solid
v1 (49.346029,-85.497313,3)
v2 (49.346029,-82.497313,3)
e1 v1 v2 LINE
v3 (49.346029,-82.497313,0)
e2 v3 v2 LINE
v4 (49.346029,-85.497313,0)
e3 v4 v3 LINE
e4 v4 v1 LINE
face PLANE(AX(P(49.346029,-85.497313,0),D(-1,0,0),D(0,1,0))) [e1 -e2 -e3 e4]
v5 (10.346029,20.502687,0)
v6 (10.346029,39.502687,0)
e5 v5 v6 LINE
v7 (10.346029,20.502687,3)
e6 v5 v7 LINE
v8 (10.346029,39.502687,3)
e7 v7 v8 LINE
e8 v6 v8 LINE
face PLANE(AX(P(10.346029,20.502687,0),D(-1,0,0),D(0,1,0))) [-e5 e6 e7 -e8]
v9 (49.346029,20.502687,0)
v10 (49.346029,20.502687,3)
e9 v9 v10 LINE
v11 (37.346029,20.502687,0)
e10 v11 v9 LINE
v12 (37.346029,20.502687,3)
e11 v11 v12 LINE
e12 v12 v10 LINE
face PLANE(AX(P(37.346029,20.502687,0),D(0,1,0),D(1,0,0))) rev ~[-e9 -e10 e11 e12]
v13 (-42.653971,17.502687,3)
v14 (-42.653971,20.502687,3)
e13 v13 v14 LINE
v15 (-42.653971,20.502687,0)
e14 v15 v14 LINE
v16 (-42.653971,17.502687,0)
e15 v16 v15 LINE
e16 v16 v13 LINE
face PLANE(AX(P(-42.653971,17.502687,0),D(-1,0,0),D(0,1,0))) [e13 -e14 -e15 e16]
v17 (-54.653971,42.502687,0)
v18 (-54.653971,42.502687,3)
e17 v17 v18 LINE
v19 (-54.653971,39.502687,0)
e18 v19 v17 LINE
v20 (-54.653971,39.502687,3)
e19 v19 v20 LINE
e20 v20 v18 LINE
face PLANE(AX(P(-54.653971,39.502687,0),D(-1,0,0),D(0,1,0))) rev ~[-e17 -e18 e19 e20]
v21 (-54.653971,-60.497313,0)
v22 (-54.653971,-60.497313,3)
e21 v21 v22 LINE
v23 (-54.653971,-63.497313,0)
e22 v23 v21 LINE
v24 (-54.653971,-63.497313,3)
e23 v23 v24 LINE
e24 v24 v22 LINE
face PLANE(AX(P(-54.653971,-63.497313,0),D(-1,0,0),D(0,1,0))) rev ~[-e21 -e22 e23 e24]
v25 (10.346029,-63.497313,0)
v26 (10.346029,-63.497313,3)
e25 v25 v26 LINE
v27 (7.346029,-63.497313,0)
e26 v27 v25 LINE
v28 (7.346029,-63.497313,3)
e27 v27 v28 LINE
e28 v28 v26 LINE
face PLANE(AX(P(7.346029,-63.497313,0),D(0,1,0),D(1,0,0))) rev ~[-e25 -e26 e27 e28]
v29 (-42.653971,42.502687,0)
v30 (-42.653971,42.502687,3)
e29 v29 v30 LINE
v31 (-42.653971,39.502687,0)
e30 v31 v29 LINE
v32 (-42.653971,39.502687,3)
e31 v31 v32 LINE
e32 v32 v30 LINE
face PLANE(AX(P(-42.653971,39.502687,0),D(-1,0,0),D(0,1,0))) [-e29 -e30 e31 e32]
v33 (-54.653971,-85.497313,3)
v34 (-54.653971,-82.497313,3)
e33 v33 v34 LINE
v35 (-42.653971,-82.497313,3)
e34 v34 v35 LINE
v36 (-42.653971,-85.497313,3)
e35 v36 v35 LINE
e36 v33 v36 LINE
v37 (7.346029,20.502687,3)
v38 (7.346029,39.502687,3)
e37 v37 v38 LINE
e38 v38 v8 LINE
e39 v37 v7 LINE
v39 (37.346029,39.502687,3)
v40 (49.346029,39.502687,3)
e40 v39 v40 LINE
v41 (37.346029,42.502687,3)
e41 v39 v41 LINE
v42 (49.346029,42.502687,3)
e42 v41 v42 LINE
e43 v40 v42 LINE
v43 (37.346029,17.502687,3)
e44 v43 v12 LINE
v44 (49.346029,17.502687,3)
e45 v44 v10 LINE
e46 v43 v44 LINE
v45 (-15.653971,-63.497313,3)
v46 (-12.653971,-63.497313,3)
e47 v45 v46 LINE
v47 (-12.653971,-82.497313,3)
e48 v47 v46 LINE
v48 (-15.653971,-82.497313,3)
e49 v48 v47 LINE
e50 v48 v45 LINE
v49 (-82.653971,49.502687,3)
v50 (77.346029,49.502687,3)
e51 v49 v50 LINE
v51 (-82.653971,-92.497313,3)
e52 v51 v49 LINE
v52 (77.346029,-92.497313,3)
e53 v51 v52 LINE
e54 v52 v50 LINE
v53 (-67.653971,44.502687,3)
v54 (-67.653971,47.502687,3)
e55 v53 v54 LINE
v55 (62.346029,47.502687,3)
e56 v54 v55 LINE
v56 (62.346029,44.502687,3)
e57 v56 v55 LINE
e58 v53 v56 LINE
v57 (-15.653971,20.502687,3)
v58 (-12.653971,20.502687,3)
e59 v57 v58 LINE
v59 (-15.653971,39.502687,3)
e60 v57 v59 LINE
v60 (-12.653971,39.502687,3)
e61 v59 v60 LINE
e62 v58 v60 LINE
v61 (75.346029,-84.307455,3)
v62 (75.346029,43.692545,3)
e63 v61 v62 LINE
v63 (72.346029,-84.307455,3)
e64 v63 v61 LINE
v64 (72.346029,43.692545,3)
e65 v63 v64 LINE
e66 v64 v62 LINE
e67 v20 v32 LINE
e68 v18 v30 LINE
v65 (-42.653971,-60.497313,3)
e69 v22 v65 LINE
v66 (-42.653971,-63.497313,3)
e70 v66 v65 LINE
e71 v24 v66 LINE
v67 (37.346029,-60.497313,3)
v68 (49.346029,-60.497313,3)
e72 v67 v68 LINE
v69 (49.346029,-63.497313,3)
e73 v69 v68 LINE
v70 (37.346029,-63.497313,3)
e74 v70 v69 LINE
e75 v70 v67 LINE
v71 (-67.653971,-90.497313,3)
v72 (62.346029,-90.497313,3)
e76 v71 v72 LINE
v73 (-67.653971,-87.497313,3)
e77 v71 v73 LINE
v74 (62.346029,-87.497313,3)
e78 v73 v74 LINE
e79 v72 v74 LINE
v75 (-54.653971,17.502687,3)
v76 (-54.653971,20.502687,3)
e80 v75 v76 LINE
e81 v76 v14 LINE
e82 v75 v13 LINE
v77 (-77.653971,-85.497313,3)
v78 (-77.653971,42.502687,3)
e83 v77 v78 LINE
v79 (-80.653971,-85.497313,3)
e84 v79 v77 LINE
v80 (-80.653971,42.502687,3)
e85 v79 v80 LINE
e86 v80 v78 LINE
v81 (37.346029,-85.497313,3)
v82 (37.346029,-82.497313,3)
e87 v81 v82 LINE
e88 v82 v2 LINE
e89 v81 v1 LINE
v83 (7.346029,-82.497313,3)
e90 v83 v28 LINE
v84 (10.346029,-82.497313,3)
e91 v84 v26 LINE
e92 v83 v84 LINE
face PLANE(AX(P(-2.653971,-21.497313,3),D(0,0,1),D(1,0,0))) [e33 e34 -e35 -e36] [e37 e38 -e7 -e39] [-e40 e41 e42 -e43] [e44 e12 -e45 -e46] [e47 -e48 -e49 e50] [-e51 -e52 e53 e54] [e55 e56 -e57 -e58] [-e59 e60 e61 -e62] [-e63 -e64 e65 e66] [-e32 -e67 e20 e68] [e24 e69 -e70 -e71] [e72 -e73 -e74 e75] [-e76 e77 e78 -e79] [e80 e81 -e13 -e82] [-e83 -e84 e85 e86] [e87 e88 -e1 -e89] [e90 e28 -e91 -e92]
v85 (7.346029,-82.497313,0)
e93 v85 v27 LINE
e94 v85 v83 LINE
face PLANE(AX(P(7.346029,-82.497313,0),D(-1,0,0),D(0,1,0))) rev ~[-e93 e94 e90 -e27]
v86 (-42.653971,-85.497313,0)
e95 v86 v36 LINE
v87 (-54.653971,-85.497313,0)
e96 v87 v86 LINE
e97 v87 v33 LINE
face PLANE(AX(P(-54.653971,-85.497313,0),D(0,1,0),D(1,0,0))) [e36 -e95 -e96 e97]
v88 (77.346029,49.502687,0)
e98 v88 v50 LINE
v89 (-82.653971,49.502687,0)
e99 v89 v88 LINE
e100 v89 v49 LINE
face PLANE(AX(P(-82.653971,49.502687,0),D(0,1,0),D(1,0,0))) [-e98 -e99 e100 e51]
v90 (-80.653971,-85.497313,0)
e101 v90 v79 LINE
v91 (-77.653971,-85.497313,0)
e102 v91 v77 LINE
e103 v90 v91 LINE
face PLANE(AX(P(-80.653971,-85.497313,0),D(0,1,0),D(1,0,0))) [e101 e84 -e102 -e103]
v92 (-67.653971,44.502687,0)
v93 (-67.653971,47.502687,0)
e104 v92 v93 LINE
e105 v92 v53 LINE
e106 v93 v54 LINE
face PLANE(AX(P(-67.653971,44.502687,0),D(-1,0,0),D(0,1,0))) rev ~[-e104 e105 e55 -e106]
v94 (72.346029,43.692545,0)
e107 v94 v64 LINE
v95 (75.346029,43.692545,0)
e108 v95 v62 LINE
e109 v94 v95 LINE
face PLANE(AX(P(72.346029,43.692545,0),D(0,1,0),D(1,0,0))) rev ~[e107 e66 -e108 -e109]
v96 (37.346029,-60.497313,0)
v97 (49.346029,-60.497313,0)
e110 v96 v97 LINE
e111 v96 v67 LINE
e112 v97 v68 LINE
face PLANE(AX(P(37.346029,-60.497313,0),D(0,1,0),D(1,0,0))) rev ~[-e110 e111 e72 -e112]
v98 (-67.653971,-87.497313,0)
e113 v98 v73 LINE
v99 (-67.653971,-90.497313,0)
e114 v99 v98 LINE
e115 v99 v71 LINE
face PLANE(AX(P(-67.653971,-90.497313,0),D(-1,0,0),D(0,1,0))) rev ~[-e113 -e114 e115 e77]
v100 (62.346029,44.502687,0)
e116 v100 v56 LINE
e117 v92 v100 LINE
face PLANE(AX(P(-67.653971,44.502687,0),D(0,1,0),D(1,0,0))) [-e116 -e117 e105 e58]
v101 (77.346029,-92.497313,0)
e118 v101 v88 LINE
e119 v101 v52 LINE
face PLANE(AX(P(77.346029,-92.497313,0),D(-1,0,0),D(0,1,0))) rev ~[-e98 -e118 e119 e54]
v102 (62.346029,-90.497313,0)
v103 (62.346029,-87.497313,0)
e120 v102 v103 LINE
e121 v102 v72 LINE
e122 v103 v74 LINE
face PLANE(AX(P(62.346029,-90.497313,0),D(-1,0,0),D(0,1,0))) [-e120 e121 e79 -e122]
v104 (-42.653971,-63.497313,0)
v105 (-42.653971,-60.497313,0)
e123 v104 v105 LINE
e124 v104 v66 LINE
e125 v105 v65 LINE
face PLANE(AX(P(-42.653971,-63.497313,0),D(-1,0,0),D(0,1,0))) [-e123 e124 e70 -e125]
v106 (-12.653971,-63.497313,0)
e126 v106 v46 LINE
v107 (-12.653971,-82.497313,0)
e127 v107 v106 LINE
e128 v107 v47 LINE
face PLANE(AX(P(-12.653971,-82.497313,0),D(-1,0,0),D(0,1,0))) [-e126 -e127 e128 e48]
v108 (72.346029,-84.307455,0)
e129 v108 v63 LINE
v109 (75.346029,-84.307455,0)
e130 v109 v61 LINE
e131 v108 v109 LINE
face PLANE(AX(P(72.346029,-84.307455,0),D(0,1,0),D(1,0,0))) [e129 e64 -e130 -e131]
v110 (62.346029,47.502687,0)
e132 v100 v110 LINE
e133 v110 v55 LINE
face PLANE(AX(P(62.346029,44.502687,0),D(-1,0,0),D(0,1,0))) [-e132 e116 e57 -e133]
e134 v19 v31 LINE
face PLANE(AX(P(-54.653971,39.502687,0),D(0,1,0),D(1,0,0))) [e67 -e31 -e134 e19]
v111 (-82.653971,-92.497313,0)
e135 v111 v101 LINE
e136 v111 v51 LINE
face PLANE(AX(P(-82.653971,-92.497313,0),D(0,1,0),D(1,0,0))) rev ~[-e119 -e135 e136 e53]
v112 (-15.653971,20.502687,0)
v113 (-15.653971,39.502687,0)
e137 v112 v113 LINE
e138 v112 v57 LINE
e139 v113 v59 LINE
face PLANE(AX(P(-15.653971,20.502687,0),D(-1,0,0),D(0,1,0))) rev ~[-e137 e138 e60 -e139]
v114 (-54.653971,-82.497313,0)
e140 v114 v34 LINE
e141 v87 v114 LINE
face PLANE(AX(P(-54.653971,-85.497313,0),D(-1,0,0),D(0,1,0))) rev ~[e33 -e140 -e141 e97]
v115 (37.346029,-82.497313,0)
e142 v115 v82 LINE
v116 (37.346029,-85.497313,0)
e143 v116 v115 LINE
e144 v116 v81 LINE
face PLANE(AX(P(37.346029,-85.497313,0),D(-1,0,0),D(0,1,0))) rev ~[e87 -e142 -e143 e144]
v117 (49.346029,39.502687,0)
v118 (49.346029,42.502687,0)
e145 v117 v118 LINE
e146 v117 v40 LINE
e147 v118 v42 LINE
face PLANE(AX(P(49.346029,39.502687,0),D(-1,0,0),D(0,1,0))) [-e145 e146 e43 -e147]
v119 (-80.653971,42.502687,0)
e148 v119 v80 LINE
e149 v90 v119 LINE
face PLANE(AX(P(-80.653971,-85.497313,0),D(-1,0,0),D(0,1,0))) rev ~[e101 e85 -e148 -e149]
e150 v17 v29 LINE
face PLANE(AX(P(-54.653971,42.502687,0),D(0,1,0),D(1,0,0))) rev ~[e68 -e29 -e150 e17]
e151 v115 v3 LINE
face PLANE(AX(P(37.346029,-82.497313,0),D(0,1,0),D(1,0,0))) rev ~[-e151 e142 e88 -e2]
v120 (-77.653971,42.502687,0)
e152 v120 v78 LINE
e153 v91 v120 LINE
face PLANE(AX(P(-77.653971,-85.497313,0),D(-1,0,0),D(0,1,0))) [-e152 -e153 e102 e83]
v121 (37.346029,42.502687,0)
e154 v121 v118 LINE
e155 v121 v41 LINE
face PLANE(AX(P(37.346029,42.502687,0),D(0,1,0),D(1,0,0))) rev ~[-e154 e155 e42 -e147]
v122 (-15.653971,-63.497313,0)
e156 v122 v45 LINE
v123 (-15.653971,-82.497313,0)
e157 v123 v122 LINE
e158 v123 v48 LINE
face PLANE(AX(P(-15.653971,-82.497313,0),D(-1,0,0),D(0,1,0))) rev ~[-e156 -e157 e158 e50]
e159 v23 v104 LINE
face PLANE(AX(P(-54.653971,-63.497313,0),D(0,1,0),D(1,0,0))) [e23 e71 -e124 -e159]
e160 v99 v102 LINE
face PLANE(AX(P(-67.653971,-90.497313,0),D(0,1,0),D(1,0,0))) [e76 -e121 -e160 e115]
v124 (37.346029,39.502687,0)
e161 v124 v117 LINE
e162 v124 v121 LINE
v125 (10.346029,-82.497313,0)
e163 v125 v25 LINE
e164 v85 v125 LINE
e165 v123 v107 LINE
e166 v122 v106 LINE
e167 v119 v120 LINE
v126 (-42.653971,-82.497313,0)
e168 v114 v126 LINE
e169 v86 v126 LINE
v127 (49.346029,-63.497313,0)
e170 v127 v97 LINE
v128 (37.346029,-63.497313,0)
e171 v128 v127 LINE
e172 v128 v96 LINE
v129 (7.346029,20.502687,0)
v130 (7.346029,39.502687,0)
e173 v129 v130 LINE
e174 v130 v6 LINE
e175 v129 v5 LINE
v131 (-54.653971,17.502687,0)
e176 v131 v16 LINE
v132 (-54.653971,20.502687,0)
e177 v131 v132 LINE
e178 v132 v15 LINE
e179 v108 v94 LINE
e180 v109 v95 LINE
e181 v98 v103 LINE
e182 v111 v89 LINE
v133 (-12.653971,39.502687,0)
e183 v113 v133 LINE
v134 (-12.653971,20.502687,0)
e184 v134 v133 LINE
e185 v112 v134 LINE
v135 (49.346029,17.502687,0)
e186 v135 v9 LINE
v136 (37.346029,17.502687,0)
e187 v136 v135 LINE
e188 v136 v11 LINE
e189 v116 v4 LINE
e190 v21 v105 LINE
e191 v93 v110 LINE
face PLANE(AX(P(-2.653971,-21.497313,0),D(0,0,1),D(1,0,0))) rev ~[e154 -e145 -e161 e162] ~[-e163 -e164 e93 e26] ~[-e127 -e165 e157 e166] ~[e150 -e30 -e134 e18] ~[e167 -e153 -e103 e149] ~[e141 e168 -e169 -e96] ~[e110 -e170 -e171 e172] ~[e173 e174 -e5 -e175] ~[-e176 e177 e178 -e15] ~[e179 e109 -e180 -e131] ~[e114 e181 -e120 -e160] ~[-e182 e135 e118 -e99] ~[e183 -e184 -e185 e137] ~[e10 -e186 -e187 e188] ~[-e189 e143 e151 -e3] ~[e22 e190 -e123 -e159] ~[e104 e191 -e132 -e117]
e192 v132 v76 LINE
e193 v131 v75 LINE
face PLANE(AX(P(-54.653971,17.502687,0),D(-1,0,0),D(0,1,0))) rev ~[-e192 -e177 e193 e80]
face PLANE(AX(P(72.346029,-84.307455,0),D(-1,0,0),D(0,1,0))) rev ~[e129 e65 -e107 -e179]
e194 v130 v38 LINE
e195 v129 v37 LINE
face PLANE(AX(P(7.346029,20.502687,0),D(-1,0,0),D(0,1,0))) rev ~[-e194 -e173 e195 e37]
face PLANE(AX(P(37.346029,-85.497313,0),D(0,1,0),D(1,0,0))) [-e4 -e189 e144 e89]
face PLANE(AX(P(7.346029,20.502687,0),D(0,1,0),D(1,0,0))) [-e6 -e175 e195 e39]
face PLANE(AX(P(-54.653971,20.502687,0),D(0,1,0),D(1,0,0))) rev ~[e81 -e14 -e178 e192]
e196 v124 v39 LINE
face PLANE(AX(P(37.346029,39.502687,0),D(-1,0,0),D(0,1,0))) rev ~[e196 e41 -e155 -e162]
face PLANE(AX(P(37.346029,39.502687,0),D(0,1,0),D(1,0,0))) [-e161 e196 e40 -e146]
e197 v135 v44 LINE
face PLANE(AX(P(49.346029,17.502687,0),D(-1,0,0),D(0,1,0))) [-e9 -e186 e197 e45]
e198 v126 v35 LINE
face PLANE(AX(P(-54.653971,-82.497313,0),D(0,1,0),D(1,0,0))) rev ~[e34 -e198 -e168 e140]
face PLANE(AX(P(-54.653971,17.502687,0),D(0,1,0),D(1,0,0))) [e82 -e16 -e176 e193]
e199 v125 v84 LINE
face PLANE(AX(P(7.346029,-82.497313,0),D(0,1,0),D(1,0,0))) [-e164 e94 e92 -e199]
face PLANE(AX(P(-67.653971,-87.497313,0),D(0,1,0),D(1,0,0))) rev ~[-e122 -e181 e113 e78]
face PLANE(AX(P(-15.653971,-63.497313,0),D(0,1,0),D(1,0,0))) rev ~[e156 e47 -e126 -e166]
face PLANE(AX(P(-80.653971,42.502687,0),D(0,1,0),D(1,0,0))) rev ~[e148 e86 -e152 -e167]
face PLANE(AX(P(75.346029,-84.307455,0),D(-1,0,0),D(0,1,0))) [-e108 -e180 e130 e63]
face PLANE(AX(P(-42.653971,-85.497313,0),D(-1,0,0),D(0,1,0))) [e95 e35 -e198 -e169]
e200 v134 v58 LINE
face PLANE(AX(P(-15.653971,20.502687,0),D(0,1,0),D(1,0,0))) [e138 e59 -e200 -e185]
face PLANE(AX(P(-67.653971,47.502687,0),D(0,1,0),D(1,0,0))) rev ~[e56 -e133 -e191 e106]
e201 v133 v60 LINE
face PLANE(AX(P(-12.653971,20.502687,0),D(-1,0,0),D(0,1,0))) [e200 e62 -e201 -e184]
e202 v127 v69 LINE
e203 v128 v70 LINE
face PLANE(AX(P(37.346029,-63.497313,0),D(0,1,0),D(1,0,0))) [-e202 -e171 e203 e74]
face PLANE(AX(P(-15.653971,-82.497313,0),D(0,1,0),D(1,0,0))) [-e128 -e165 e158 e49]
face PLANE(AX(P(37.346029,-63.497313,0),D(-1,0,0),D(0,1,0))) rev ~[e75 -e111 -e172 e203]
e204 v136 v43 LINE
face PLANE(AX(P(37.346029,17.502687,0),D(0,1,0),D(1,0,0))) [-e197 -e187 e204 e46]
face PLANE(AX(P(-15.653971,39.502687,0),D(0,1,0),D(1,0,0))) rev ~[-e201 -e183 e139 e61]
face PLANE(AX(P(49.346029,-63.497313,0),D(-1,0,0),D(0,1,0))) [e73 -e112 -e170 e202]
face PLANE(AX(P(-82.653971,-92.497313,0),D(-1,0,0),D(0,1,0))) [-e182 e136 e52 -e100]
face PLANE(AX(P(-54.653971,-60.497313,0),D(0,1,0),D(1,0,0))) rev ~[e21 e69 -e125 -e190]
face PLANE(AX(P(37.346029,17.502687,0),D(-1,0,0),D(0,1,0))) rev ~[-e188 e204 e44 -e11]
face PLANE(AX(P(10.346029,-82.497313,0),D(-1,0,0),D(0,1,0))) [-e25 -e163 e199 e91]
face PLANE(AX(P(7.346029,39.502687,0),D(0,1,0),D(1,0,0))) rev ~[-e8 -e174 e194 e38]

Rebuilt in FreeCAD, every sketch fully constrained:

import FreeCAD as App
import Part
import Sketcher
from FreeCAD import Vector
Q = App.Units.Quantity


def add_polygon(sketch, points):
    """Adds a closed chain of lines whose ends are joined by coincident constraints."""
    first, n = sketch.GeometryCount, len(points)
    for a, b in zip(points, points[1:] + points[:1]):
        sketch.addGeometry(Part.LineSegment(App.Vector(*a, 0), App.Vector(*b, 0)), False)
    for i in range(n):
        sketch.addConstraint(Sketcher.Constraint("Coincident", first + i, 2, first + (i + 1) % n, 1))

doc = App.newDocument("Part")
body = doc.addObject("PartDesign::Body", "Body")

# Sketch on XY plane
sketch1 = doc.addObject("Sketcher::SketchObject", "Sketch")
body.addObject(sketch1)
sketch1.AttachmentSupport = (doc.XY_Plane, [""])
sketch1.MapMode = "FlatFace"
add_polygon(sketch1, [(-82.7, 49.5), (-82.7, -92.5), (77.3, -92.5), (77.3, 49.5)])  # lines 0-3
add_polygon(sketch1, [(-42.7, -85.5), (-54.7, -85.5), (-54.7, -82.5), (-42.7, -82.5)])  # lines 4-7
add_polygon(sketch1, [(-42.7, -63.5), (-54.7, -63.5), (-54.7, -60.5), (-42.7, -60.5)])  # lines 8-11
add_polygon(sketch1, [(-12.7, -82.5), (-15.7, -82.5), (-15.7, -63.5), (-12.7, -63.5)])  # lines 12-15
add_polygon(sketch1, [(62.3, -90.5), (-67.7, -90.5), (-67.7, -87.5), (62.3, -87.5)])  # lines 16-19
add_polygon(sketch1, [(10.3, -82.5), (7.3, -82.5), (7.3, -63.5), (10.3, -63.5)])  # lines 20-23
add_polygon(sketch1, [(49.3, -85.5), (37.3, -85.5), (37.3, -82.5), (49.3, -82.5)])  # lines 24-27
add_polygon(sketch1, [(49.3, -63.5), (37.3, -63.5), (37.3, -60.5), (49.3, -60.5)])  # lines 28-31
add_polygon(sketch1, [(-77.7, -85.5), (-80.7, -85.5), (-80.7, 42.5), (-77.7, 42.5)])  # lines 32-35
add_polygon(sketch1, [(-42.7, 17.5), (-54.7, 17.5), (-54.7, 20.5), (-42.7, 20.5)])  # lines 36-39
add_polygon(sketch1, [(-42.7, 39.5), (-54.7, 39.5), (-54.7, 42.5), (-42.7, 42.5)])  # lines 40-43
add_polygon(sketch1, [(-12.7, 20.5), (-15.7, 20.5), (-15.7, 39.5), (-12.7, 39.5)])  # lines 44-47
add_polygon(sketch1, [(75.3, -84.3), (72.3, -84.3), (72.3, 43.7), (75.3, 43.7)])  # lines 48-51
add_polygon(sketch1, [(10.3, 20.5), (7.3, 20.5), (7.3, 39.5), (10.3, 39.5)])  # lines 52-55
add_polygon(sketch1, [(62.3, 44.5), (-67.7, 44.5), (-67.7, 47.5), (62.3, 47.5)])  # lines 56-59
add_polygon(sketch1, [(49.3, 17.5), (37.3, 17.5), (37.3, 20.5), (49.3, 20.5)])  # lines 60-63
add_polygon(sketch1, [(49.3, 39.5), (37.3, 39.5), (37.3, 42.5), (49.3, 42.5)])  # lines 64-67
sketch1.addConstraint([
    Sketcher.Constraint("Vertical", 0),
    Sketcher.Constraint("Horizontal", 1),
    Sketcher.Constraint("Vertical", 2),
    Sketcher.Constraint("Horizontal", 3),
    Sketcher.Constraint("Horizontal", 4),
    Sketcher.Constraint("Vertical", 5),
    Sketcher.Constraint("Horizontal", 6),
    Sketcher.Constraint("Vertical", 7),
    Sketcher.Constraint("Horizontal", 8),
    Sketcher.Constraint("Vertical", 9),
    Sketcher.Constraint("Horizontal", 10),
    Sketcher.Constraint("Vertical", 11),
    Sketcher.Constraint("Horizontal", 12),
    Sketcher.Constraint("Vertical", 13),
    Sketcher.Constraint("Horizontal", 14),
    Sketcher.Constraint("Vertical", 15),
    Sketcher.Constraint("Horizontal", 16),
    Sketcher.Constraint("Vertical", 17),
    Sketcher.Constraint("Horizontal", 18),
    Sketcher.Constraint("Vertical", 19),
    Sketcher.Constraint("Horizontal", 20),
    Sketcher.Constraint("Vertical", 21),
    Sketcher.Constraint("Horizontal", 22),
    Sketcher.Constraint("Vertical", 23),
    Sketcher.Constraint("Horizontal", 24),
    Sketcher.Constraint("Vertical", 25),
    Sketcher.Constraint("Horizontal", 26),
    Sketcher.Constraint("Vertical", 27),
    Sketcher.Constraint("Horizontal", 28),
    Sketcher.Constraint("Vertical", 29),
    Sketcher.Constraint("Horizontal", 30),
    Sketcher.Constraint("Vertical", 31),
    Sketcher.Constraint("Horizontal", 32),
    Sketcher.Constraint("Vertical", 33),
    Sketcher.Constraint("Horizontal", 34),
    Sketcher.Constraint("Vertical", 35),
    Sketcher.Constraint("Horizontal", 36),
    Sketcher.Constraint("Vertical", 37),
    Sketcher.Constraint("Horizontal", 38),
    Sketcher.Constraint("Vertical", 39),
    Sketcher.Constraint("Horizontal", 40),
    Sketcher.Constraint("Vertical", 41),
    Sketcher.Constraint("Horizontal", 42),
    Sketcher.Constraint("Vertical", 43),
    Sketcher.Constraint("Horizontal", 44),
    Sketcher.Constraint("Vertical", 45),
    Sketcher.Constraint("Horizontal", 46),
    Sketcher.Constraint("Vertical", 47),
    Sketcher.Constraint("Horizontal", 48),
    Sketcher.Constraint("Vertical", 49),
    Sketcher.Constraint("Horizontal", 50),
    Sketcher.Constraint("Vertical", 51),
    Sketcher.Constraint("Horizontal", 52),
    Sketcher.Constraint("Vertical", 53),
    Sketcher.Constraint("Horizontal", 54),
    Sketcher.Constraint("Vertical", 55),
    Sketcher.Constraint("Horizontal", 56),
    Sketcher.Constraint("Vertical", 57),
    Sketcher.Constraint("Horizontal", 58),
    Sketcher.Constraint("Vertical", 59),
    Sketcher.Constraint("Horizontal", 60),
    Sketcher.Constraint("Vertical", 61),
    Sketcher.Constraint("Horizontal", 62),
    Sketcher.Constraint("Vertical", 63),
    Sketcher.Constraint("Horizontal", 64),
    Sketcher.Constraint("Vertical", 65),
    Sketcher.Constraint("Horizontal", 66),
    Sketcher.Constraint("Vertical", 67),
    Sketcher.Constraint("Horizontal", 6, 2, 12, 2),
    Sketcher.Constraint("Horizontal", 11, 2, 13, 2),
    Sketcher.Constraint("Horizontal", 15, 2, 20, 2),
    Sketcher.Constraint("Horizontal", 14, 2, 21, 2),
    Sketcher.Constraint("Horizontal", 7, 2, 24, 2),
    Sketcher.Constraint("Horizontal", 23, 2, 25, 2),
    Sketcher.Constraint("Horizontal", 22, 2, 28, 2),
    Sketcher.Constraint("Horizontal", 10, 2, 29, 2),
    Sketcher.Constraint("Horizontal", 27, 2, 32, 2),
    Sketcher.Constraint("Horizontal", 34, 2, 41, 2),
    Sketcher.Constraint("Horizontal", 38, 2, 44, 2),
    Sketcher.Constraint("Horizontal", 43, 2, 45, 2),
    Sketcher.Constraint("Horizontal", 47, 2, 52, 2),
    Sketcher.Constraint("Horizontal", 46, 2, 53, 2),
    Sketcher.Constraint("Horizontal", 39, 2, 60, 2),
    Sketcher.Constraint("Horizontal", 55, 2, 61, 2),
    Sketcher.Constraint("Horizontal", 54, 2, 64, 2),
    Sketcher.Constraint("Horizontal", 42, 2, 65, 2),
    Sketcher.Constraint("Vertical", 5, 2, 8, 2),
    Sketcher.Constraint("Vertical", 7, 2, 10, 2),
    Sketcher.Constraint("Vertical", 25, 2, 28, 2),
    Sketcher.Constraint("Vertical", 27, 2, 30, 2),
    Sketcher.Constraint("Vertical", 9, 2, 36, 2),
    Sketcher.Constraint("Vertical", 11, 2, 38, 2),
    Sketcher.Constraint("Vertical", 37, 2, 40, 2),
    Sketcher.Constraint("Vertical", 39, 2, 42, 2),
    Sketcher.Constraint("Vertical", 13, 2, 44, 2),
    Sketcher.Constraint("Vertical", 15, 2, 46, 2),
    Sketcher.Constraint("Vertical", 21, 2, 52, 2),
    Sketcher.Constraint("Vertical", 23, 2, 54, 2),
    Sketcher.Constraint("Vertical", 17, 2, 56, 2),
    Sketcher.Constraint("Vertical", 19, 2, 58, 2),
    Sketcher.Constraint("Vertical", 29, 2, 60, 2),
    Sketcher.Constraint("Vertical", 31, 2, 62, 2),
    Sketcher.Constraint("Vertical", 61, 2, 64, 2),
    Sketcher.Constraint("Vertical", 63, 2, 66, 2),
    Sketcher.Constraint("Equal", 14, 20),
    Sketcher.Constraint("Equal", 10, 24),
    Sketcher.Constraint("Equal", 22, 32),
    Sketcher.Constraint("Equal", 46, 48),
    Sketcher.Constraint("Equal", 54, 5),
    Sketcher.Constraint("Equal", 7, 9),
    Sketcher.Constraint("Equal", 11, 17),
    Sketcher.Constraint("Equal", 31, 37),
    Sketcher.Constraint("Equal", 39, 41),
    Sketcher.Constraint("Equal", 23, 45),
    Sketcher.Constraint("Equal", 35, 49),
    Sketcher.Constraint("Equal", 43, 57),
    Sketcher.Constraint("DistanceX", 1, 1, 1, 2, Q("160 mm")),
    Sketcher.Constraint("DistanceX", 4, 2, 4, 1, Q("12 mm")),
    Sketcher.Constraint("DistanceX", 12, 2, 12, 1, Q("3 mm")),
    Sketcher.Constraint("DistanceX", 16, 2, 16, 1, Q("130 mm")),
    Sketcher.Constraint("DistanceY", 0, 2, 0, 1, Q("142 mm")),
    Sketcher.Constraint("DistanceY", 13, 1, 13, 2, Q("19 mm")),
    Sketcher.Constraint("DistanceY", 33, 1, 33, 2, Q("128 mm")),
    Sketcher.Constraint("DistanceX", 0, 2, -1, 1, Q("82.653971 mm")),
    Sketcher.Constraint("DistanceX", 4, 2, -1, 1, Q("54.653971 mm")),
    Sketcher.Constraint("DistanceX", 12, 2, -1, 1, Q("15.653971 mm")),
    Sketcher.Constraint("DistanceX", 16, 2, -1, 1, Q("67.653971 mm")),
    Sketcher.Constraint("DistanceX", -1, 1, 20, 2, Q("7.346029 mm")),
    Sketcher.Constraint("DistanceX", -1, 1, 24, 2, Q("37.346029 mm")),
    Sketcher.Constraint("DistanceX", 32, 2, -1, 1, Q("80.653971 mm")),
    Sketcher.Constraint("DistanceX", -1, 1, 48, 2, Q("72.346029 mm")),
    Sketcher.Constraint("DistanceY", 0, 2, -1, 1, Q("92.497313 mm")),
    Sketcher.Constraint("DistanceY", 4, 2, -1, 1, Q("85.497313 mm")),
    Sketcher.Constraint("DistanceY", 16, 2, -1, 1, Q("90.497313 mm")),
    Sketcher.Constraint("DistanceY", 48, 2, -1, 1, Q("84.307455 mm")),
    Sketcher.Constraint("DistanceY", -1, 1, 56, 2, Q("44.502687 mm")),
])
pad1 = doc.addObject("PartDesign::Pad", "Pad")
body.addObject(pad1)
pad1.Profile = sketch1
pad1.Length = 3

doc.recompute()
